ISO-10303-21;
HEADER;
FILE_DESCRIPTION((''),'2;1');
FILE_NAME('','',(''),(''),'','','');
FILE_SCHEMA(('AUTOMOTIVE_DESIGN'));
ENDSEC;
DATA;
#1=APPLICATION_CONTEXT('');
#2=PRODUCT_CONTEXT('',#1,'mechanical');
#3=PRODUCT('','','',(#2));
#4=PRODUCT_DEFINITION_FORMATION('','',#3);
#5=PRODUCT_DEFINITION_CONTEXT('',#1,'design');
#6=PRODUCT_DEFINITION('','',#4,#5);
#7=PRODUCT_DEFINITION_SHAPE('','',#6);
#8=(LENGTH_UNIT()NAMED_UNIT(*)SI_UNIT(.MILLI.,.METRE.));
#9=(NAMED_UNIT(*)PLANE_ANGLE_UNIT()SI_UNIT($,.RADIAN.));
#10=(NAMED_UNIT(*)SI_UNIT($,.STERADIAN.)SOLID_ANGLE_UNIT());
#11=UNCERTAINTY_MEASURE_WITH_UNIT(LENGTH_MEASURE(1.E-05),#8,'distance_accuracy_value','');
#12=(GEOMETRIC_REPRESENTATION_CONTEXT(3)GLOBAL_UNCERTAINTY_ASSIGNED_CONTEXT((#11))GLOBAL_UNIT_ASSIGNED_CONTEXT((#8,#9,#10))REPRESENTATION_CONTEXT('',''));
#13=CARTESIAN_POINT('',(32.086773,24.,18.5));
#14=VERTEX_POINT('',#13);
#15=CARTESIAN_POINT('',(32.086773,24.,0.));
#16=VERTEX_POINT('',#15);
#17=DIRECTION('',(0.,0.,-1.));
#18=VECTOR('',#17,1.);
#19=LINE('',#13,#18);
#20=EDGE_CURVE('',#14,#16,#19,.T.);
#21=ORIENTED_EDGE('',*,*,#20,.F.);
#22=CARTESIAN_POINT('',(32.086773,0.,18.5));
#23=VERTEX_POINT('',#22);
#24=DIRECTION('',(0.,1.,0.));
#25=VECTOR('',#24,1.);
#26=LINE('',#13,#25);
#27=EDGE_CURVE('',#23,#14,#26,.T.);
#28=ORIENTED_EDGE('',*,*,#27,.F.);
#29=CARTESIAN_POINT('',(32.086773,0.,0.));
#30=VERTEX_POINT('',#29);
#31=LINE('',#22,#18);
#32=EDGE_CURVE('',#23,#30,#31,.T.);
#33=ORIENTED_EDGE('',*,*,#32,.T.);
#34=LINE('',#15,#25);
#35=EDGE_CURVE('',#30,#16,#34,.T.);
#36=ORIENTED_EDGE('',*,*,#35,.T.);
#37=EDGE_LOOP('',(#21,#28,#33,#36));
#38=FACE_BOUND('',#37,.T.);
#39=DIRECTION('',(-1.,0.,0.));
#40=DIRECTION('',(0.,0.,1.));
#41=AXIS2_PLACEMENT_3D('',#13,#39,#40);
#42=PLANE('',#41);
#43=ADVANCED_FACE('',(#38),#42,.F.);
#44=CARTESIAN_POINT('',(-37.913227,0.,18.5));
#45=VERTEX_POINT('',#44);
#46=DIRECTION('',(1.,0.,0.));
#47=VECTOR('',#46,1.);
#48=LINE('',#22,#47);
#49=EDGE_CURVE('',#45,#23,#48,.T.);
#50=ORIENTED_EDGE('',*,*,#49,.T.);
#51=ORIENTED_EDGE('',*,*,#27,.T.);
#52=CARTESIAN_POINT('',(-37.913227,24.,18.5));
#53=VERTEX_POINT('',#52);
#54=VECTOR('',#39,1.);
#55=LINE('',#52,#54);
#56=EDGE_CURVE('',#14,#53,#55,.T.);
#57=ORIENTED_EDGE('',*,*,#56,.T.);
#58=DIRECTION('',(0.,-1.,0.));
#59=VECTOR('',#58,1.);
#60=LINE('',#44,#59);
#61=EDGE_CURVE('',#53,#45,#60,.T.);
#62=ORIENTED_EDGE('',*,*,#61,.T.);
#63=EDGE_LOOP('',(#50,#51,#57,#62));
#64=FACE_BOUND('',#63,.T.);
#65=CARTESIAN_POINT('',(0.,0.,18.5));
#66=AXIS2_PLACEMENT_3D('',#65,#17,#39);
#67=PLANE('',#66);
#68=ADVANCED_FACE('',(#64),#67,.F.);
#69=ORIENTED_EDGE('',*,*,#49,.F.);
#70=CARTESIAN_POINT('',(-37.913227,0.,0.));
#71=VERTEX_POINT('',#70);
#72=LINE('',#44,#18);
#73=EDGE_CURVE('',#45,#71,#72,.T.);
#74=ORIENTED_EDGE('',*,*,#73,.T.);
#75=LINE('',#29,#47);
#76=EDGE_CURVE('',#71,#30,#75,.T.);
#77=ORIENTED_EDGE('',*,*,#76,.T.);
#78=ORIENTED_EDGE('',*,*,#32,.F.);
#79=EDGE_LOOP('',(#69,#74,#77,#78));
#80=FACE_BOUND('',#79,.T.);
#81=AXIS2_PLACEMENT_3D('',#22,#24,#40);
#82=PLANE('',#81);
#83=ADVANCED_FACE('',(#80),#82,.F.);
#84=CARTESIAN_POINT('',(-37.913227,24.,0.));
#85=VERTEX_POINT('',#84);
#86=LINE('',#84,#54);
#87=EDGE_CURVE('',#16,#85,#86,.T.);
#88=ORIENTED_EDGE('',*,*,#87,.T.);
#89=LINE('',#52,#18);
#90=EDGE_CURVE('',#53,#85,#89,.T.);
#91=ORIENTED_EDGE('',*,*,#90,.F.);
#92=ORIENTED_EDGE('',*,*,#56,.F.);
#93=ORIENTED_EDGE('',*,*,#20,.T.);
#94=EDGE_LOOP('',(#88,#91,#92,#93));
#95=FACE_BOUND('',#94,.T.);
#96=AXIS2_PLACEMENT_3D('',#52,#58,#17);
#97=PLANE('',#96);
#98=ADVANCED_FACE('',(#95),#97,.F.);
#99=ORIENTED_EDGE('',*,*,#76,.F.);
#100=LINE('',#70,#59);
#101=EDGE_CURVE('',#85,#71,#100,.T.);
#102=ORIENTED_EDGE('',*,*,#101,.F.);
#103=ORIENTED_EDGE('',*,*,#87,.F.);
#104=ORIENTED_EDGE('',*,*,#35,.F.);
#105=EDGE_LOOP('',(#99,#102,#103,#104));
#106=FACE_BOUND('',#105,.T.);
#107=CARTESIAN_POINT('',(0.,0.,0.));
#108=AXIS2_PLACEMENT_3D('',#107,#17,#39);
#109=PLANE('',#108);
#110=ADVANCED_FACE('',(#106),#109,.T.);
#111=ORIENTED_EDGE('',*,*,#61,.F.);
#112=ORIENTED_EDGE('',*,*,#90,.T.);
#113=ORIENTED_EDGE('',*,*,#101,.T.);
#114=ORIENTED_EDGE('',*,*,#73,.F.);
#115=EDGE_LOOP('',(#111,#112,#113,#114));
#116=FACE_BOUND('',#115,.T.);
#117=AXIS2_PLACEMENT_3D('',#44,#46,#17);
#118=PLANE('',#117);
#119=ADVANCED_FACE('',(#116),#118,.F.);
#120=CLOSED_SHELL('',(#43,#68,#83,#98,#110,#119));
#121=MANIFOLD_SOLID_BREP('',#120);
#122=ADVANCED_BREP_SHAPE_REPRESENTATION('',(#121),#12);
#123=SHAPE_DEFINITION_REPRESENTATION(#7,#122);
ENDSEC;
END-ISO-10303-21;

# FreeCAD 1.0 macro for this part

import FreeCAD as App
import Part
import Sketcher

V = App.Vector
Q = App.Units.Quantity

doc = App.newDocument("Part")
body = doc.addObject("PartDesign::Body", "Body")

# Sketch on XY plane
sketch1 = doc.addObject("Sketcher::SketchObject", "Sketch")
body.addObject(sketch1)
sketch1.AttachmentSupport = (doc.XY_Plane, [""])
sketch1.MapMode = "FlatFace"
sketch1.addGeometry(Part.LineSegment(V(-38, 24, 0), V(-38, 0, 0)), False)
sketch1.addGeometry(Part.LineSegment(V(-38, 0, 0), V(32, 0, 0)), False)
sketch1.addGeometry(Part.LineSegment(V(32, 0, 0), V(32, 24, 0)), False)
sketch1.addGeometry(Part.LineSegment(V(32, 24, 0), V(-38, 24, 0)), False)
sketch1.addConstraint(Sketcher.Constraint("Coincident", 0, 2, 1, 1))
sketch1.addConstraint(Sketcher.Constraint("Coincident", 1, 2, 2, 1))
sketch1.addConstraint(Sketcher.Constraint("Coincident", 2, 2, 3, 1))
sketch1.addConstraint(Sketcher.Constraint("Coincident", 3, 2, 0, 1))
sketch1.addConstraint(Sketcher.Constraint("Vertical", 0))
sketch1.addConstraint(Sketcher.Constraint("Horizontal", 1))
sketch1.addConstraint(Sketcher.Constraint("Vertical", 2))
sketch1.addConstraint(Sketcher.Constraint("Horizontal", 3))
sketch1.addConstraint(Sketcher.Constraint("PointOnObject", 0, 2, -1))
sketch1.addConstraint(Sketcher.Constraint("DistanceX", 1, 1, 1, 2, Q("70 mm")))
sketch1.addConstraint(Sketcher.Constraint("DistanceY", 0, 2, 0, 1, Q("24 mm")))
sketch1.addConstraint(Sketcher.Constraint("DistanceX", 0, 2, -1, 1, Q("37.913227 mm")))
pad1 = doc.addObject("PartDesign::Pad", "Pad")
body.addObject(pad1)
pad1.Profile = sketch1
pad1.Length = 18.5

doc.recompute()
